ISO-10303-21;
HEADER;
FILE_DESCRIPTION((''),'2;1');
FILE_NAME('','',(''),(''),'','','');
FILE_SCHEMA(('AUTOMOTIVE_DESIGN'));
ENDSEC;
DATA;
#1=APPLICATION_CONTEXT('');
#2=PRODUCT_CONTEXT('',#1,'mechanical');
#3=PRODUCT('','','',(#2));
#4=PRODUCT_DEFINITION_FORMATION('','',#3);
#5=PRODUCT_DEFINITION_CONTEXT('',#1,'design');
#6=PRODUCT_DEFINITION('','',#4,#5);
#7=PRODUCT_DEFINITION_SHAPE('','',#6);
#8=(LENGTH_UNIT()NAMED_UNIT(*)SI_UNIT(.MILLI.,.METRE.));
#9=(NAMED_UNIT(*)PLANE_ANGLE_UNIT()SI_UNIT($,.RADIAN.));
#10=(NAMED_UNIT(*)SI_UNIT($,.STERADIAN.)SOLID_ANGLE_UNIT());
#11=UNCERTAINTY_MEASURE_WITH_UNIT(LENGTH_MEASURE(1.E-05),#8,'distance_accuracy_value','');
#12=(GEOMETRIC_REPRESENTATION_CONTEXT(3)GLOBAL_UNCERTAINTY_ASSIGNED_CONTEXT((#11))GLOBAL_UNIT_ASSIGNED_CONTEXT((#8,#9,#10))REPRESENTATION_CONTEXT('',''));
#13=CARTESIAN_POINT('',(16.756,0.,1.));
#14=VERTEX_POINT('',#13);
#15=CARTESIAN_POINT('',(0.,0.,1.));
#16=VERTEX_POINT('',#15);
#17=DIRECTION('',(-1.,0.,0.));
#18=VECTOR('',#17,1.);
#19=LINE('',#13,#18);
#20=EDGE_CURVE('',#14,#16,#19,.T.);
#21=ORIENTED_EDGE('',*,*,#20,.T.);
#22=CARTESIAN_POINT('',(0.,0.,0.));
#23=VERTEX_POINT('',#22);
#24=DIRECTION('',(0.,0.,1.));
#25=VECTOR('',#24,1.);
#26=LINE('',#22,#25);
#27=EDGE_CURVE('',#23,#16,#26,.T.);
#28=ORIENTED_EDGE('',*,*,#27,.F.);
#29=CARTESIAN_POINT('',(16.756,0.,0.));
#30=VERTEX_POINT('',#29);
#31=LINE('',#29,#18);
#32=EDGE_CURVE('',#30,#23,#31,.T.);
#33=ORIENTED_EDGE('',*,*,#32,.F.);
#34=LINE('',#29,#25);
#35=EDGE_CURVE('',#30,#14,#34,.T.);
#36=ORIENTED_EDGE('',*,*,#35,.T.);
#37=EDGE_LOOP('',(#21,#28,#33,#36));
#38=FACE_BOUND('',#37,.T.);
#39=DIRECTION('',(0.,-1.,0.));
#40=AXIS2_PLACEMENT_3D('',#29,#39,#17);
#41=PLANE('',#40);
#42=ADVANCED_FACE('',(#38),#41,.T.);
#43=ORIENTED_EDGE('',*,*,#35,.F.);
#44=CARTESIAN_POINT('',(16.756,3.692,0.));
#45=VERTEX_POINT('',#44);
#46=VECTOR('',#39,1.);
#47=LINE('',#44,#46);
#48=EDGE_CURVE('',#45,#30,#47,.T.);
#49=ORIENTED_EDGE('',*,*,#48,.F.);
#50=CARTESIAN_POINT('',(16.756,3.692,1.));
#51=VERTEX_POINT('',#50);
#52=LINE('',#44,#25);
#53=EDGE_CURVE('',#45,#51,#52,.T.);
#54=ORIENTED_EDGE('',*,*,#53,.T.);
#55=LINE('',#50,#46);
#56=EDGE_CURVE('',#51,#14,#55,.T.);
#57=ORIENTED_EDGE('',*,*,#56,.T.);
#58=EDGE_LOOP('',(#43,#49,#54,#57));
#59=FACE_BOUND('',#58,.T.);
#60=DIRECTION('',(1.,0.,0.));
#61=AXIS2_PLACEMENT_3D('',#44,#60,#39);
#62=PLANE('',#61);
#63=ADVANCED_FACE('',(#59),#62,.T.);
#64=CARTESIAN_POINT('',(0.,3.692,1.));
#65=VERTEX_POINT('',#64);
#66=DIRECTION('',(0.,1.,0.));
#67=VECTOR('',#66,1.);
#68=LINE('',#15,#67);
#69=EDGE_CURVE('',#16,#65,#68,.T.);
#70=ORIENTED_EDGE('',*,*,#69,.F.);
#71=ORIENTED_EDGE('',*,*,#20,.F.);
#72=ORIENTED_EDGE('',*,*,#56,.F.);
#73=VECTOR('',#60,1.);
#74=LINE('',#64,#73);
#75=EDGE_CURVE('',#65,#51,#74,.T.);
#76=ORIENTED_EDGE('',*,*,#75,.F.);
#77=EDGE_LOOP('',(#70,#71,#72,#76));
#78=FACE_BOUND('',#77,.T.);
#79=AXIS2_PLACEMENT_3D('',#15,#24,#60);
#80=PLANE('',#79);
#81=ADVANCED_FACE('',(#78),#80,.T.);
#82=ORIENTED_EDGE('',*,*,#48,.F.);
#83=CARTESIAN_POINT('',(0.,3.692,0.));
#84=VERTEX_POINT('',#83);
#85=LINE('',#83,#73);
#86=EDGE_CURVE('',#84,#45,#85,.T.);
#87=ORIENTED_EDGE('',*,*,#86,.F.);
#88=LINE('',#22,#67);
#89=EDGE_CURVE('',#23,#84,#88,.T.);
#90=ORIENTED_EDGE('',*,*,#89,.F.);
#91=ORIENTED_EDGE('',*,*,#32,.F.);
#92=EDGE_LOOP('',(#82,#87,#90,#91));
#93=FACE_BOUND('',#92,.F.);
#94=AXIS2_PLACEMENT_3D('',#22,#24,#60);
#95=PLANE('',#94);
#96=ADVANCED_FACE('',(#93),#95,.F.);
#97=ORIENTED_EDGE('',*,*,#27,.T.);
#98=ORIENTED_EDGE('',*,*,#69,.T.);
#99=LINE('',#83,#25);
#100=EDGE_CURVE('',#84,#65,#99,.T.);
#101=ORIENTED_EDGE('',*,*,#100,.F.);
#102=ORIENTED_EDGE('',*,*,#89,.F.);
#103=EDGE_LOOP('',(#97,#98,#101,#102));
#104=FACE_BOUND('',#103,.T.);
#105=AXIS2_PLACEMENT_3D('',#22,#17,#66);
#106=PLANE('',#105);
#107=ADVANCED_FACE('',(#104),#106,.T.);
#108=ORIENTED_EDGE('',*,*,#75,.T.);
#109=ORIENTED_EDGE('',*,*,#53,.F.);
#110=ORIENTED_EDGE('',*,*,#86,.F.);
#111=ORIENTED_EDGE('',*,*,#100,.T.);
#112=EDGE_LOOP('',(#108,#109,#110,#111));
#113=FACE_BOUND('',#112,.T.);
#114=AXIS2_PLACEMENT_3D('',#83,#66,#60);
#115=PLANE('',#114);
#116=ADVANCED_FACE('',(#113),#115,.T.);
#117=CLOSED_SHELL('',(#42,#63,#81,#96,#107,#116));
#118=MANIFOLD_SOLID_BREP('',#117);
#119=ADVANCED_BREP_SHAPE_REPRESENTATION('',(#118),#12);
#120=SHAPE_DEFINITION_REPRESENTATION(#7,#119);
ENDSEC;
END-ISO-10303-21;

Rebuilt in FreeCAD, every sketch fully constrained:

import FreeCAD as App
import Part
import Sketcher

V = App.Vector


def add_polygon(sketch, points):
    """Adds a closed chain of lines whose ends are joined by coincident constraints."""
    first, n = sketch.GeometryCount, len(points)
    for a, b in zip(points, points[1:] + points[:1]):
        sketch.addGeometry(Part.LineSegment(App.Vector(*a, 0), App.Vector(*b, 0)), False)
    for i in range(n):
        sketch.addConstraint(Sketcher.Constraint("Coincident", first + i, 2, first + (i + 1) % n, 1))

doc = App.newDocument("Part")
body = doc.addObject("PartDesign::Body", "Body")

# Sketch on XY plane
sketch1 = body.newObject("Sketcher::SketchObject", "Sketch")
sketch1.AttachmentSupport = (doc.getObject("XY_Plane"), [""])
sketch1.MapMode = "FlatFace"
add_polygon(sketch1, [(16.8, 3.7), (0, 3.7), (0, 0), (16.8, 0)])  # lines 0-3
sketch1.addConstraint([
    Sketcher.Constraint("Horizontal", 0),
    Sketcher.Constraint("Vertical", 1),
    Sketcher.Constraint("Horizontal", 2),
    Sketcher.Constraint("Vertical", 3),
    Sketcher.Constraint("Coincident", 1, 2, -1, 1),
    Sketcher.Constraint("DistanceX", 0, 2, 0, 1, 16.756),
    Sketcher.Constraint("DistanceY", 1, 2, 1, 1, 3.692),
])
pad1 = body.newObject("PartDesign::Pad", "Pad")
pad1.Profile = sketch1
pad1.Length = 1

doc.recompute()
